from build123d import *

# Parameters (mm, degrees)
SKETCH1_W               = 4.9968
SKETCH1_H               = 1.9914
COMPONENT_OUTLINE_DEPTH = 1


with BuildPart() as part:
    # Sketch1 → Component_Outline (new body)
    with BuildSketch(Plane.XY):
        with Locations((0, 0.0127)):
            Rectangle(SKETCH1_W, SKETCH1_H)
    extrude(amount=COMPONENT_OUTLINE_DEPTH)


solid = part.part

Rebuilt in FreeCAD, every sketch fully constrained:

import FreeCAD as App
import Part
import Sketcher


def add_polygon(sketch, points):
    """Adds a closed chain of lines whose ends are joined by coincident constraints."""
    first, n = sketch.GeometryCount, len(points)
    for a, b in zip(points, points[1:] + points[:1]):
        sketch.addGeometry(Part.LineSegment(App.Vector(*a, 0), App.Vector(*b, 0)), False)
    for i in range(n):
        sketch.addConstraint(Sketcher.Constraint("Coincident", first + i, 2, first + (i + 1) % n, 1))

doc = App.newDocument("Part")
body = doc.addObject("PartDesign::Body", "Body")

# Sketch on XY plane
sketch1 = body.newObject("Sketcher::SketchObject", "Sketch")
sketch1.AttachmentSupport = (doc.getObject("XY_Plane"), [""])
sketch1.MapMode = "FlatFace"
add_polygon(sketch1, [(-2.4984, 1.0084), (-2.4984, -0.983), (2.4984, -0.983), (2.4984, 1.0084)])  # lines 0-3
sketch1.addConstraint([
    Sketcher.Constraint("Vertical", 0),
    Sketcher.Constraint("Horizontal", 1),
    Sketcher.Constraint("Vertical", 2),
    Sketcher.Constraint("Horizontal", 3),
    Sketcher.Constraint("DistanceX", 1, 1, 1, 2, 4.9968),
    Sketcher.Constraint("DistanceY", 0, 2, 0, 1, 1.9914),
    Sketcher.Constraint("DistanceY", 0, 2, -1, 1, 0.983),
    Sketcher.Constraint("DistanceX", 0, 2, -1, 1, 2.4984),
])
pad1 = body.newObject("PartDesign::Pad", "Pad")
pad1.Profile = sketch1
pad1.Length = 1

doc.recompute()
